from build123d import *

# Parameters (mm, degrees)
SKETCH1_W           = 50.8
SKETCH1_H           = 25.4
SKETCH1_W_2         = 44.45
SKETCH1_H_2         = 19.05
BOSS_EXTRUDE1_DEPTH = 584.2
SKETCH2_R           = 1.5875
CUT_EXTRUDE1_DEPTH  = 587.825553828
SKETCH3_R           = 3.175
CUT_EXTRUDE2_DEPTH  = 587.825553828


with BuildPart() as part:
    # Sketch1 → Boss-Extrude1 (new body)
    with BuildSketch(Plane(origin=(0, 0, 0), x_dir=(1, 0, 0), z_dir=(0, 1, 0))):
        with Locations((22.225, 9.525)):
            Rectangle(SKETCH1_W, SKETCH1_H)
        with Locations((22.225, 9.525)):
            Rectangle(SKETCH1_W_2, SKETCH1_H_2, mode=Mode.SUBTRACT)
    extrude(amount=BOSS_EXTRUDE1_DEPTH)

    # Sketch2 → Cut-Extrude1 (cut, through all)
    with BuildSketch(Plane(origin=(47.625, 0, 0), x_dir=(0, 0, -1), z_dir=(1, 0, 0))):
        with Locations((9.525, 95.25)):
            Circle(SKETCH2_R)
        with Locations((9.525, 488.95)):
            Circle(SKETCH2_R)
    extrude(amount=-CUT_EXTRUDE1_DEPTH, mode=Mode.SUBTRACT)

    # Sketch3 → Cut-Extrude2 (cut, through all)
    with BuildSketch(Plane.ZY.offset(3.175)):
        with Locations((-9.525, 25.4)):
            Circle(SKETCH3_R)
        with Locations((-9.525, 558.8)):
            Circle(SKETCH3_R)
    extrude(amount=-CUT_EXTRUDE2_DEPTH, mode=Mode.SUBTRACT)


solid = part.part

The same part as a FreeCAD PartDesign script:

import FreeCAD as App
import Part
import Sketcher
from FreeCAD import Vector
Q = App.Units.Quantity


def add_polygon(sketch, points):
    """Adds a closed chain of lines whose ends are joined by coincident constraints."""
    first, n = sketch.GeometryCount, len(points)
    for a, b in zip(points, points[1:] + points[:1]):
        sketch.addGeometry(Part.LineSegment(App.Vector(*a, 0), App.Vector(*b, 0)), False)
    for i in range(n):
        sketch.addConstraint(Sketcher.Constraint("Coincident", first + i, 2, first + (i + 1) % n, 1))

doc = App.newDocument("Part")
body = doc.addObject("PartDesign::Body", "Body")

# Sketch on XZ plane
sketch1 = body.newObject("Sketcher::SketchObject", "Sketch")
sketch1.AttachmentSupport = (doc.getObject("XZ_Plane"), [""])
sketch1.MapMode = "FlatFace"
add_polygon(sketch1, [(-3, -22), (-3, 3), (48, 3), (48, -22)])  # lines 0-3
add_polygon(sketch1, [(44, 0), (0, 0), (0, -19), (44, -19)])  # lines 4-7
sketch1.addConstraint([
    Sketcher.Constraint("Vertical", 0),
    Sketcher.Constraint("Horizontal", 1),
    Sketcher.Constraint("Vertical", 2),
    Sketcher.Constraint("Horizontal", 3),
    Sketcher.Constraint("Horizontal", 4),
    Sketcher.Constraint("Vertical", 5),
    Sketcher.Constraint("Horizontal", 6),
    Sketcher.Constraint("Vertical", 7),
    Sketcher.Constraint("Coincident", 4, 2, -1, 1),
    Sketcher.Constraint("DistanceX", 1, 1, 1, 2, Q("2 in")),
    Sketcher.Constraint("DistanceY", 0, 1, 0, 2, Q("1 in")),
    Sketcher.Constraint("DistanceX", 4, 2, 4, 1, Q("1.75 in")),
    Sketcher.Constraint("DistanceY", 5, 2, 5, 1, Q("0.75 in")),
    Sketcher.Constraint("DistanceX", 0, 2, -1, 1, Q("0.125 in")),
    Sketcher.Constraint("DistanceY", -1, 1, 0, 2, Q("0.125 in")),
])
pad1 = body.newObject("PartDesign::Pad", "Pad")
pad1.Profile = sketch1
pad1.Length = Q("23 in")
pad1.Reversed = True

# Sketch on YZ plane
sketch2 = body.newObject("Sketcher::SketchObject", "Sketch001")
sketch2.AttachmentSupport = (doc.getObject("YZ_Plane"), [""])
sketch2.MapMode = "FlatFace"
sketch2.AttachmentOffset = App.Placement(Vector(0, 0, 1.875 * 25.4), App.Rotation())
sketch2.addGeometry([
    Part.Circle(Vector(95.2, -9.5, 0), Vector(0, 0, 1), 1.6),
    Part.Circle(Vector(488.9, -9.5, 0), Vector(0, 0, 1), 1.6),
], False)
sketch2.addConstraint([
    Sketcher.Constraint("Equal", 0, 1),
    Sketcher.Constraint("Horizontal", 0, 3, 1, 3),
    Sketcher.Constraint("Diameter", 0, Q("0.125 in")),
    Sketcher.Constraint("DistanceX", 0, 3, 1, 3, Q("15.5 in")),
    Sketcher.Constraint("DistanceX", -1, 1, 0, 3, Q("3.75 in")),
    Sketcher.Constraint("DistanceY", 0, 3, -1, 1, Q("0.375 in")),
])
pocket1 = body.newObject("PartDesign::Pocket", "Pocket")
pocket1.Profile = sketch2
pocket1.Type = "ThroughAll"

# Sketch on YZ plane
sketch3 = body.newObject("Sketcher::SketchObject", "Sketch002")
sketch3.AttachmentSupport = (doc.getObject("YZ_Plane"), [""])
sketch3.MapMode = "FlatFace"
sketch3.AttachmentOffset = App.Placement(Vector(0, 0, -0.125 * 25.4), App.Rotation())
sketch3.addGeometry([
    Part.Circle(Vector(25.4, -9.5, 0), Vector(0, 0, 1), 3.2),
    Part.Circle(Vector(558.8, -9.5, 0), Vector(0, 0, 1), 3.2),
], False)
sketch3.addConstraint([
    Sketcher.Constraint("Equal", 0, 1),
    Sketcher.Constraint("Horizontal", 0, 3, 1, 3),
    Sketcher.Constraint("Diameter", 0, Q("0.25 in")),
    Sketcher.Constraint("DistanceX", -1, 1, 0, 3, Q("1 in")),
    Sketcher.Constraint("DistanceX", -1, 1, 1, 3, Q("22 in")),
    Sketcher.Constraint("DistanceY", 0, 3, -1, 1, Q("0.375 in")),
])
pocket2 = body.newObject("PartDesign::Pocket", "Pocket001")
pocket2.Profile = sketch3
pocket2.Type = "ThroughAll"
pocket2.Reversed = True

doc.recompute()
